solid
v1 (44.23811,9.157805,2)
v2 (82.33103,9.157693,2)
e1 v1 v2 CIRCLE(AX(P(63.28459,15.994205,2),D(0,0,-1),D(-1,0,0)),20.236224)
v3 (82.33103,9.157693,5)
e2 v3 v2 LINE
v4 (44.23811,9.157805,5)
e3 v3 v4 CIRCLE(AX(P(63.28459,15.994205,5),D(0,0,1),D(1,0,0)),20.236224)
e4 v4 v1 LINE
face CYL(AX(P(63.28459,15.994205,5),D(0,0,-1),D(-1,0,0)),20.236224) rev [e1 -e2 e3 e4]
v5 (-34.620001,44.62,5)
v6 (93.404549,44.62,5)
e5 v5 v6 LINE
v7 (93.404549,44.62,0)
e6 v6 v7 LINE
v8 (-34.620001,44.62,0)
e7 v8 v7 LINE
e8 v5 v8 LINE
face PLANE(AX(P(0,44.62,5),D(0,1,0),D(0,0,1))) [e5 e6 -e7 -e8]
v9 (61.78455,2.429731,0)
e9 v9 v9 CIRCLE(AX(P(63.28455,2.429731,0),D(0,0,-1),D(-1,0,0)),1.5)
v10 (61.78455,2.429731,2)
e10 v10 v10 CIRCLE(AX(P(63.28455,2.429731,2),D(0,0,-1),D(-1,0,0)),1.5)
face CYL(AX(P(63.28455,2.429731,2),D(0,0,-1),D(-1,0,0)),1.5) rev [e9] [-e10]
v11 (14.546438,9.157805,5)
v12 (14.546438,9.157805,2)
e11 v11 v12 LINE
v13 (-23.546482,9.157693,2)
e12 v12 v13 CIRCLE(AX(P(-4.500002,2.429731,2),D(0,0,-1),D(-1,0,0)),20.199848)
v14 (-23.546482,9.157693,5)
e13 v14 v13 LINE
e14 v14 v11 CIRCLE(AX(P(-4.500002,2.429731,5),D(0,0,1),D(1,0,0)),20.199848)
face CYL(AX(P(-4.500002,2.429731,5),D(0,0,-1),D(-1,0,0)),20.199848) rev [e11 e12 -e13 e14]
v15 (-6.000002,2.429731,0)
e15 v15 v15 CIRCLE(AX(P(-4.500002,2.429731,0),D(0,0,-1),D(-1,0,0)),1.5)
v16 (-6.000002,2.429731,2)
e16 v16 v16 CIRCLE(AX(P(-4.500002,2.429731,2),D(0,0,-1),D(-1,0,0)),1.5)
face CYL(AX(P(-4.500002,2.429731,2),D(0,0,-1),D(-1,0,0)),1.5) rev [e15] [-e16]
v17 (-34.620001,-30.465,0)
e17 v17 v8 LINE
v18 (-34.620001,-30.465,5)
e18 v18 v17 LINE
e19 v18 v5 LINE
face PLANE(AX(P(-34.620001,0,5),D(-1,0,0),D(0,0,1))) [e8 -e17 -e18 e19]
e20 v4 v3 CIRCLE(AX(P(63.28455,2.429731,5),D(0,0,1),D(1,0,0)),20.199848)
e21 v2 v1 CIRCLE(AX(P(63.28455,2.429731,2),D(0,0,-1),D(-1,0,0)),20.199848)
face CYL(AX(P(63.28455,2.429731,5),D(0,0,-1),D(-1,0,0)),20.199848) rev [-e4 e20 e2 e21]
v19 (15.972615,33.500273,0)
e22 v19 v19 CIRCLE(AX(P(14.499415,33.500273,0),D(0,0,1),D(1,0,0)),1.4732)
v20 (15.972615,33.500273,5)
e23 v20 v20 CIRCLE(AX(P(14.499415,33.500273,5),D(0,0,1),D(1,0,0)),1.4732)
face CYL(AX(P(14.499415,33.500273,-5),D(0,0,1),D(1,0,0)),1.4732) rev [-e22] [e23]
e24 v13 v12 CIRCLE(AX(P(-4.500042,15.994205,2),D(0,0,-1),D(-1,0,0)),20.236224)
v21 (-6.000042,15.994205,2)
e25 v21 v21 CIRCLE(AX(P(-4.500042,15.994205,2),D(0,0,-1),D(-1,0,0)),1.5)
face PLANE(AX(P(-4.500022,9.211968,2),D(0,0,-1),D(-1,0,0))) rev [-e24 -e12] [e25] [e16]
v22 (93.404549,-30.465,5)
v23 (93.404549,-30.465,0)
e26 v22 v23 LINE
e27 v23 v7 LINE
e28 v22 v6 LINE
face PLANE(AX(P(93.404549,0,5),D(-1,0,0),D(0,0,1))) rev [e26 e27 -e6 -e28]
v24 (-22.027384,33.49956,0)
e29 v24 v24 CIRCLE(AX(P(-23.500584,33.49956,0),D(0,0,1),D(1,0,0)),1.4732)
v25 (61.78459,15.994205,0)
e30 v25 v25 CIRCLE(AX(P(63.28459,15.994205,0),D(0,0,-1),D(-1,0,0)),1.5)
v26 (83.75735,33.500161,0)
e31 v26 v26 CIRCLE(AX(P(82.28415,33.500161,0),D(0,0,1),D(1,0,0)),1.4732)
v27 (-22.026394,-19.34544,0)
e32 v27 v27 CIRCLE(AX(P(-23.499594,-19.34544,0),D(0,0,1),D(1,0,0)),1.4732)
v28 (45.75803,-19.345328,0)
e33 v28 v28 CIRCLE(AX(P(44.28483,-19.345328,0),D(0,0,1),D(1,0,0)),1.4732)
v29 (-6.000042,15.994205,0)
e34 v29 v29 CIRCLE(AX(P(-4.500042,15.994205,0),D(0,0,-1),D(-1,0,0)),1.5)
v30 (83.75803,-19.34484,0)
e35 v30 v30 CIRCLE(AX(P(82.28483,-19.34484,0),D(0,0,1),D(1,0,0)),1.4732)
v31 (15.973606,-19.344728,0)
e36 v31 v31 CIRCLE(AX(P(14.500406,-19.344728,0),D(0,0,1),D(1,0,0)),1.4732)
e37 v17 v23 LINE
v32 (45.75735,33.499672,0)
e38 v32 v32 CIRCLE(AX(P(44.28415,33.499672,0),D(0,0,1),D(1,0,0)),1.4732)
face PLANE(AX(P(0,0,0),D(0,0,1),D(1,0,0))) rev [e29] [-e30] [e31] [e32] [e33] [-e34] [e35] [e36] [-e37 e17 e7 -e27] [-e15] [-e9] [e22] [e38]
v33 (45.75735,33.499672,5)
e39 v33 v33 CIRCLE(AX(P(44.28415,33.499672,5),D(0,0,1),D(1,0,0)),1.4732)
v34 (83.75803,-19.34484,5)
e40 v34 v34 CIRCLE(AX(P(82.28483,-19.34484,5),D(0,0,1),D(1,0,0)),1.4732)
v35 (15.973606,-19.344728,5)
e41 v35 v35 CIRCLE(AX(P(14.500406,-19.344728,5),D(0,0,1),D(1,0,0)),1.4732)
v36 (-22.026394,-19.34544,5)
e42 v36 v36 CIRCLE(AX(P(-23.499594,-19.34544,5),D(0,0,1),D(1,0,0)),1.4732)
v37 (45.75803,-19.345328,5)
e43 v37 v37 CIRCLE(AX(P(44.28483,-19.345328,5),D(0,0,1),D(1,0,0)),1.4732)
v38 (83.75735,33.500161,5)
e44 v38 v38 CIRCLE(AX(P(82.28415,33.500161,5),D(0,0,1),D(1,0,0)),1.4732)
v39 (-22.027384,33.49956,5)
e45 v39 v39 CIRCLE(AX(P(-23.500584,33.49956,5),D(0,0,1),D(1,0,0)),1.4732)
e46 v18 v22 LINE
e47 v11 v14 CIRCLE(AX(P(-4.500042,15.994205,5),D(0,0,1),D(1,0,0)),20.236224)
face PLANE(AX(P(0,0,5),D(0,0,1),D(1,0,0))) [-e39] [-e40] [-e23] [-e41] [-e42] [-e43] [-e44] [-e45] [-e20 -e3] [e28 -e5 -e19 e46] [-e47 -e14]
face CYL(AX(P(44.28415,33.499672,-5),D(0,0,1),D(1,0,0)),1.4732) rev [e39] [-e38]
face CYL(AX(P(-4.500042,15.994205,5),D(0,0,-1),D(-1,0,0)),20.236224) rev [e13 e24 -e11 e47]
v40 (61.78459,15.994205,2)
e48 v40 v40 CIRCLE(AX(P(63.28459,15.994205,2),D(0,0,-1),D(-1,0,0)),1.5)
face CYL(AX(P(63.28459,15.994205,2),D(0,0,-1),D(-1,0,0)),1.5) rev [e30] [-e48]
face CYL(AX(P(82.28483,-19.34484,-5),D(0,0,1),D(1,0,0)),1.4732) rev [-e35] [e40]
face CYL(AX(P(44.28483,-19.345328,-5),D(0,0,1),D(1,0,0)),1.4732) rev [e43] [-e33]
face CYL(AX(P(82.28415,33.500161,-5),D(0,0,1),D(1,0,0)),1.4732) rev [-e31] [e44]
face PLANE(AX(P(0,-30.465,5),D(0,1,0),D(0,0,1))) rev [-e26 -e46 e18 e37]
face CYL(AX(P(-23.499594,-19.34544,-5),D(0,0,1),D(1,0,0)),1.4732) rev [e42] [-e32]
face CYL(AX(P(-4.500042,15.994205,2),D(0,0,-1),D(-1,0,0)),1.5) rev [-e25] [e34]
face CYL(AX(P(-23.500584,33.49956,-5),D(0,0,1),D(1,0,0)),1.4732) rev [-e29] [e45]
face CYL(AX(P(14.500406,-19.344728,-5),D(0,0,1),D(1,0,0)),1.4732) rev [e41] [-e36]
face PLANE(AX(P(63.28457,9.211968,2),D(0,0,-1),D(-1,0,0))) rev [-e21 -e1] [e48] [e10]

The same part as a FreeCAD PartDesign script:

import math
import FreeCAD as App
import Part
import Sketcher
Q = App.Units.Quantity


def add_polygon(sketch, points):
    """Adds a closed chain of lines whose ends are joined by coincident constraints."""
    first, n = sketch.GeometryCount, len(points)
    for a, b in zip(points, points[1:] + points[:1]):
        sketch.addGeometry(Part.LineSegment(App.Vector(*a, 0), App.Vector(*b, 0)), False)
    for i in range(n):
        sketch.addConstraint(Sketcher.Constraint("Coincident", first + i, 2, first + (i + 1) % n, 1))

doc = App.newDocument("Part")
body = doc.addObject("PartDesign::Body", "Body")

sketch1 = body.newObject("Sketcher::SketchObject", "Sketch")
sketch1.AttachmentSupport = (doc.getObject("XY_Plane"), [""])
sketch1.MapMode = "FlatFace"
add_polygon(sketch1, [(93, -30), (93, 45), (-35, 45), (-35, -30)])
sketch1.addGeometry(Part.ArcOfCircle(Part.Circle(App.Vector(63, 2, 0), App.Vector(0, 0, 1), 20), math.radians(0), math.radians(19.46)), False)
sketch1.addGeometry(Part.ArcOfCircle(Part.Circle(App.Vector(63, 2, 0), App.Vector(0, 0, 1), 20), math.radians(161), math.radians(360)), False)
sketch1.addGeometry(Part.ArcOfCircle(Part.Circle(App.Vector(63, 16, 0), App.Vector(0, 0, 1), 20), math.radians(0), math.radians(200)), False)
sketch1.addGeometry(Part.ArcOfCircle(Part.Circle(App.Vector(63, 16, 0), App.Vector(0, 0, 1), 20), math.radians(-19.75), math.radians(0)), False)
sketch1.addGeometry(Part.ArcOfCircle(Part.Circle(App.Vector(-5, 2, 0), App.Vector(0, 0, 1), 20), math.radians(161), math.radians(360)), False)
sketch1.addGeometry(Part.ArcOfCircle(Part.Circle(App.Vector(-5, 16, 0), App.Vector(0, 0, 1), 20), math.radians(0), math.radians(200)), False)
sketch1.addGeometry(Part.ArcOfCircle(Part.Circle(App.Vector(-5, 16, 0), App.Vector(0, 0, 1), 20), math.radians(-19.74), math.radians(0)), False)
sketch1.addGeometry(Part.ArcOfCircle(Part.Circle(App.Vector(-5, 2, 0), App.Vector(0, 0, 1), 20), math.radians(0), math.radians(19.46)), False)
sketch1.addConstraint([
    Sketcher.Constraint("Tangent", 4, 1, 5, 2),
    Sketcher.Constraint("Coincident", 5, 1, 6, 2),
    Sketcher.Constraint("Tangent", 6, 1, 7, 2),
    Sketcher.Constraint("Coincident", 7, 1, 4, 2),
    Sketcher.Constraint("Coincident", 8, 1, 9, 2),
    Sketcher.Constraint("Tangent", 9, 1, 10, 2),
    Sketcher.Constraint("Coincident", 10, 1, 11, 2),
    Sketcher.Constraint("Tangent", 11, 1, 8, 2),
    Sketcher.Constraint("Vertical", 0),
    Sketcher.Constraint("Horizontal", 1),
    Sketcher.Constraint("Vertical", 2),
    Sketcher.Constraint("Horizontal", 3),
    Sketcher.Constraint("Equal", 4, 5),
    Sketcher.Constraint("Equal", 6, 7),
    Sketcher.Constraint("Equal", 5, 8),
    Sketcher.Constraint("Equal", 7, 9),
    Sketcher.Constraint("Equal", 9, 10),
    Sketcher.Constraint("Equal", 8, 11),
    Sketcher.Constraint("Horizontal", 5, 3, 8, 3),
    Sketcher.Constraint("Horizontal", 7, 3, 9, 3),
    Sketcher.Constraint("Horizontal", 11, 3, 4, 1),
    Sketcher.Constraint("Horizontal", 10, 3, 6, 1),
    Sketcher.Constraint("Horizontal", 7, 1, 8, 1),
    Sketcher.Constraint("Horizontal", 6, 1, 9, 1),
    Sketcher.Constraint("Horizontal", 4, 1, 11, 1),
    Sketcher.Constraint("DistanceX", 8, 3, -1, 1, Q("4.500002 mm")),
    Sketcher.Constraint("DistanceY", 0, 1, 0, 2, Q("75.085001 mm")),
    Sketcher.Constraint("DistanceY", -1, 1, 0, 2, Q("44.62 mm")),
    Sketcher.Constraint("DistanceX", 1, 2, -1, 1, Q("34.620001 mm")),
    Sketcher.Constraint("Radius", 4, Q("20.199848 mm")),
    Sketcher.Constraint("DistanceX", 4, 3, 0, 2, Q("30.119999 mm")),
    Sketcher.Constraint("Radius", 6, Q("20.236224 mm")),
    Sketcher.Constraint("DistanceX", 1, 2, 1, 1, Q("128.024549 mm")),
    Sketcher.Constraint("DistanceY", 5, 1, 7, 3, Q("6.8364 mm")),
    Sketcher.Constraint("DistanceY", -1, 1, 4, 3, Q("2.429731 mm")),
    Sketcher.Constraint("DistanceX", -1, 1, 6, 3, Q("63.28459 mm")),
])
pad1 = body.newObject("PartDesign::Pad", "Pad")
pad1.Profile = sketch1
pad1.Length = 5

sketch2 = body.newObject("Sketcher::SketchObject", "Sketch001")
sketch2.AttachmentSupport = (doc.getObject("XY_Plane"), [""])
sketch2.MapMode = "FlatFace"
sketch2.AttachmentOffset = App.Placement(App.Vector(0, 0, 5), App.Rotation())
sketch2.addGeometry([
    Part.Circle(App.Vector(-23.5, 33.5, 0), App.Vector(0, 0, 1), 1.5),
    Part.Circle(App.Vector(14.5, 33.5, 0), App.Vector(0, 0, 1), 1.5),
    Part.Circle(App.Vector(-23.5, -19.3, 0), App.Vector(0, 0, 1), 1.5),
    Part.Circle(App.Vector(14.5, -19.3, 0), App.Vector(0, 0, 1), 1.5),
    Part.Circle(App.Vector(44.3, -19.3, 0), App.Vector(0, 0, 1), 1.5),
    Part.Circle(App.Vector(44.3, 33.5, 0), App.Vector(0, 0, 1), 1.5),
    Part.Circle(App.Vector(82.3, 33.5, 0), App.Vector(0, 0, 1), 1.5),
    Part.Circle(App.Vector(82.3, -19.3, 0), App.Vector(0, 0, 1), 1.5),
], False)
sketch2.addConstraint([
    Sketcher.Constraint("Equal", 0, 1),
    Sketcher.Constraint("Equal", 1, 2),
    Sketcher.Constraint("Equal", 2, 3),
    Sketcher.Constraint("Equal", 3, 4),
    Sketcher.Constraint("Equal", 4, 5),
    Sketcher.Constraint("Equal", 5, 6),
    Sketcher.Constraint("Equal", 6, 7),
    Sketcher.Constraint("DistanceX", 0, 3, 1, 3, Q("38 mm")),
    Sketcher.Constraint("DistanceX", 2, 3, 3, 3, Q("38 mm")),
    Sketcher.Constraint("DistanceX", 5, 3, 6, 3, Q("38 mm")),
    Sketcher.Constraint("DistanceX", 4, 3, 7, 3, Q("38 mm")),
    Sketcher.Constraint("Diameter", 0, Q("2.9464 mm")),
    Sketcher.Constraint("DistanceY", 2, 3, 0, 3, Q("52.845 mm")),
    Sketcher.Constraint("DistanceY", 3, 3, 1, 3, Q("52.845 mm")),
    Sketcher.Constraint("DistanceY", 4, 3, 5, 3, Q("52.845001 mm")),
    Sketcher.Constraint("DistanceY", 7, 3, 6, 3, Q("52.845001 mm")),
    Sketcher.Constraint("DistanceY", 4, 3, 3, 3, Q("0.000601 mm")),
    Sketcher.Constraint("DistanceY", 0, 3, 6, 3, Q("0.000601 mm")),
    Sketcher.Constraint("DistanceY", -1, 1, 0, 3, Q("33.49956 mm")),
    Sketcher.Constraint("DistanceX", -1, 1, 4, 3, Q("44.28483 mm")),
    Sketcher.Constraint("DistanceY", 4, 3, -1, 1, Q("19.345328 mm")),
    Sketcher.Constraint("DistanceX", -1, 1, 5, 3, Q("44.28415 mm")),
    Sketcher.Constraint("DistanceX", 0, 3, 2, 3, Q("0.000991 mm")),
    Sketcher.Constraint("DistanceX", 0, 3, -1, 1, Q("23.500584 mm")),
])
pocket1 = body.newObject("PartDesign::Pocket", "Pocket")
pocket1.Profile = sketch2
pocket1.Length = 10

sketch3 = body.newObject("Sketcher::SketchObject", "Sketch002")
sketch3.AttachmentSupport = (doc.getObject("XY_Plane"), [""])
sketch3.MapMode = "FlatFace"
sketch3.addGeometry([
    Part.ArcOfCircle(Part.Circle(App.Vector(63.3, 16, 0), App.Vector(0, 0, 1), 20.2), math.radians(-20), math.radians(200)),
    Part.ArcOfCircle(Part.Circle(App.Vector(63.3, 2.4, 0), App.Vector(0, 0, 1), 20.2), math.radians(161), math.radians(379)),
    Part.Circle(App.Vector(63.3, 2.4, 0), App.Vector(0, 0, 1), 1.5),
    Part.Circle(App.Vector(63.3, 16, 0), App.Vector(0, 0, 1), 1.5),
    Part.ArcOfCircle(Part.Circle(App.Vector(-4.5, 16, 0), App.Vector(0, 0, 1), 20.2), math.radians(-20), math.radians(200)),
    Part.ArcOfCircle(Part.Circle(App.Vector(-4.5, 2.4, 0), App.Vector(0, 0, 1), 20.2), math.radians(161), math.radians(379)),
    Part.Circle(App.Vector(-4.5, 2.4, 0), App.Vector(0, 0, 1), 1.5),
    Part.Circle(App.Vector(-4.5, 16, 0), App.Vector(0, 0, 1), 1.5),
], False)
sketch3.addConstraint([
    Sketcher.Constraint("Coincident", 0, 1, 1, 2),
    Sketcher.Constraint("Coincident", 1, 1, 0, 2),
    Sketcher.Constraint("Coincident", 4, 1, 5, 2),
    Sketcher.Constraint("Coincident", 5, 1, 4, 2),
    Sketcher.Constraint("Coincident", 2, 3, 1, 3),
    Sketcher.Constraint("Coincident", 3, 3, 0, 3),
    Sketcher.Constraint("Coincident", 6, 3, 5, 3),
    Sketcher.Constraint("Coincident", 7, 3, 4, 3),
    Sketcher.Constraint("Equal", 2, 3),
    Sketcher.Constraint("Equal", 0, 4),
    Sketcher.Constraint("Equal", 1, 5),
    Sketcher.Constraint("Equal", 3, 6),
    Sketcher.Constraint("Equal", 6, 7),
    Sketcher.Constraint("Horizontal", 3, 3, 4, 3),
    Sketcher.Constraint("Horizontal", 2, 3, 5, 3),
    Sketcher.Constraint("Horizontal", 1, 1, 4, 1),
    Sketcher.Constraint("Diameter", 2, Q("3 mm")),
    Sketcher.Constraint("DistanceX", 5, 3, -1, 1, Q("4.500002 mm")),
    Sketcher.Constraint("Radius", 1, Q("20.199848 mm")),
    Sketcher.Constraint("Radius", 0, Q("20.236224 mm")),
    Sketcher.Constraint("DistanceY", 1, 1, 0, 3, Q("6.8364 mm")),
    Sketcher.Constraint("DistanceX", -1, 1, 0, 3, Q("63.28459 mm")),
    Sketcher.Constraint("DistanceX", -1, 1, 1, 3, Q("63.28455 mm")),
    Sketcher.Constraint("DistanceY", -1, 1, 1, 3, Q("2.429731 mm")),
])
pad2 = body.newObject("PartDesign::Pad", "Pad001")
pad2.Profile = sketch3
pad2.Length = 2

doc.recompute()
